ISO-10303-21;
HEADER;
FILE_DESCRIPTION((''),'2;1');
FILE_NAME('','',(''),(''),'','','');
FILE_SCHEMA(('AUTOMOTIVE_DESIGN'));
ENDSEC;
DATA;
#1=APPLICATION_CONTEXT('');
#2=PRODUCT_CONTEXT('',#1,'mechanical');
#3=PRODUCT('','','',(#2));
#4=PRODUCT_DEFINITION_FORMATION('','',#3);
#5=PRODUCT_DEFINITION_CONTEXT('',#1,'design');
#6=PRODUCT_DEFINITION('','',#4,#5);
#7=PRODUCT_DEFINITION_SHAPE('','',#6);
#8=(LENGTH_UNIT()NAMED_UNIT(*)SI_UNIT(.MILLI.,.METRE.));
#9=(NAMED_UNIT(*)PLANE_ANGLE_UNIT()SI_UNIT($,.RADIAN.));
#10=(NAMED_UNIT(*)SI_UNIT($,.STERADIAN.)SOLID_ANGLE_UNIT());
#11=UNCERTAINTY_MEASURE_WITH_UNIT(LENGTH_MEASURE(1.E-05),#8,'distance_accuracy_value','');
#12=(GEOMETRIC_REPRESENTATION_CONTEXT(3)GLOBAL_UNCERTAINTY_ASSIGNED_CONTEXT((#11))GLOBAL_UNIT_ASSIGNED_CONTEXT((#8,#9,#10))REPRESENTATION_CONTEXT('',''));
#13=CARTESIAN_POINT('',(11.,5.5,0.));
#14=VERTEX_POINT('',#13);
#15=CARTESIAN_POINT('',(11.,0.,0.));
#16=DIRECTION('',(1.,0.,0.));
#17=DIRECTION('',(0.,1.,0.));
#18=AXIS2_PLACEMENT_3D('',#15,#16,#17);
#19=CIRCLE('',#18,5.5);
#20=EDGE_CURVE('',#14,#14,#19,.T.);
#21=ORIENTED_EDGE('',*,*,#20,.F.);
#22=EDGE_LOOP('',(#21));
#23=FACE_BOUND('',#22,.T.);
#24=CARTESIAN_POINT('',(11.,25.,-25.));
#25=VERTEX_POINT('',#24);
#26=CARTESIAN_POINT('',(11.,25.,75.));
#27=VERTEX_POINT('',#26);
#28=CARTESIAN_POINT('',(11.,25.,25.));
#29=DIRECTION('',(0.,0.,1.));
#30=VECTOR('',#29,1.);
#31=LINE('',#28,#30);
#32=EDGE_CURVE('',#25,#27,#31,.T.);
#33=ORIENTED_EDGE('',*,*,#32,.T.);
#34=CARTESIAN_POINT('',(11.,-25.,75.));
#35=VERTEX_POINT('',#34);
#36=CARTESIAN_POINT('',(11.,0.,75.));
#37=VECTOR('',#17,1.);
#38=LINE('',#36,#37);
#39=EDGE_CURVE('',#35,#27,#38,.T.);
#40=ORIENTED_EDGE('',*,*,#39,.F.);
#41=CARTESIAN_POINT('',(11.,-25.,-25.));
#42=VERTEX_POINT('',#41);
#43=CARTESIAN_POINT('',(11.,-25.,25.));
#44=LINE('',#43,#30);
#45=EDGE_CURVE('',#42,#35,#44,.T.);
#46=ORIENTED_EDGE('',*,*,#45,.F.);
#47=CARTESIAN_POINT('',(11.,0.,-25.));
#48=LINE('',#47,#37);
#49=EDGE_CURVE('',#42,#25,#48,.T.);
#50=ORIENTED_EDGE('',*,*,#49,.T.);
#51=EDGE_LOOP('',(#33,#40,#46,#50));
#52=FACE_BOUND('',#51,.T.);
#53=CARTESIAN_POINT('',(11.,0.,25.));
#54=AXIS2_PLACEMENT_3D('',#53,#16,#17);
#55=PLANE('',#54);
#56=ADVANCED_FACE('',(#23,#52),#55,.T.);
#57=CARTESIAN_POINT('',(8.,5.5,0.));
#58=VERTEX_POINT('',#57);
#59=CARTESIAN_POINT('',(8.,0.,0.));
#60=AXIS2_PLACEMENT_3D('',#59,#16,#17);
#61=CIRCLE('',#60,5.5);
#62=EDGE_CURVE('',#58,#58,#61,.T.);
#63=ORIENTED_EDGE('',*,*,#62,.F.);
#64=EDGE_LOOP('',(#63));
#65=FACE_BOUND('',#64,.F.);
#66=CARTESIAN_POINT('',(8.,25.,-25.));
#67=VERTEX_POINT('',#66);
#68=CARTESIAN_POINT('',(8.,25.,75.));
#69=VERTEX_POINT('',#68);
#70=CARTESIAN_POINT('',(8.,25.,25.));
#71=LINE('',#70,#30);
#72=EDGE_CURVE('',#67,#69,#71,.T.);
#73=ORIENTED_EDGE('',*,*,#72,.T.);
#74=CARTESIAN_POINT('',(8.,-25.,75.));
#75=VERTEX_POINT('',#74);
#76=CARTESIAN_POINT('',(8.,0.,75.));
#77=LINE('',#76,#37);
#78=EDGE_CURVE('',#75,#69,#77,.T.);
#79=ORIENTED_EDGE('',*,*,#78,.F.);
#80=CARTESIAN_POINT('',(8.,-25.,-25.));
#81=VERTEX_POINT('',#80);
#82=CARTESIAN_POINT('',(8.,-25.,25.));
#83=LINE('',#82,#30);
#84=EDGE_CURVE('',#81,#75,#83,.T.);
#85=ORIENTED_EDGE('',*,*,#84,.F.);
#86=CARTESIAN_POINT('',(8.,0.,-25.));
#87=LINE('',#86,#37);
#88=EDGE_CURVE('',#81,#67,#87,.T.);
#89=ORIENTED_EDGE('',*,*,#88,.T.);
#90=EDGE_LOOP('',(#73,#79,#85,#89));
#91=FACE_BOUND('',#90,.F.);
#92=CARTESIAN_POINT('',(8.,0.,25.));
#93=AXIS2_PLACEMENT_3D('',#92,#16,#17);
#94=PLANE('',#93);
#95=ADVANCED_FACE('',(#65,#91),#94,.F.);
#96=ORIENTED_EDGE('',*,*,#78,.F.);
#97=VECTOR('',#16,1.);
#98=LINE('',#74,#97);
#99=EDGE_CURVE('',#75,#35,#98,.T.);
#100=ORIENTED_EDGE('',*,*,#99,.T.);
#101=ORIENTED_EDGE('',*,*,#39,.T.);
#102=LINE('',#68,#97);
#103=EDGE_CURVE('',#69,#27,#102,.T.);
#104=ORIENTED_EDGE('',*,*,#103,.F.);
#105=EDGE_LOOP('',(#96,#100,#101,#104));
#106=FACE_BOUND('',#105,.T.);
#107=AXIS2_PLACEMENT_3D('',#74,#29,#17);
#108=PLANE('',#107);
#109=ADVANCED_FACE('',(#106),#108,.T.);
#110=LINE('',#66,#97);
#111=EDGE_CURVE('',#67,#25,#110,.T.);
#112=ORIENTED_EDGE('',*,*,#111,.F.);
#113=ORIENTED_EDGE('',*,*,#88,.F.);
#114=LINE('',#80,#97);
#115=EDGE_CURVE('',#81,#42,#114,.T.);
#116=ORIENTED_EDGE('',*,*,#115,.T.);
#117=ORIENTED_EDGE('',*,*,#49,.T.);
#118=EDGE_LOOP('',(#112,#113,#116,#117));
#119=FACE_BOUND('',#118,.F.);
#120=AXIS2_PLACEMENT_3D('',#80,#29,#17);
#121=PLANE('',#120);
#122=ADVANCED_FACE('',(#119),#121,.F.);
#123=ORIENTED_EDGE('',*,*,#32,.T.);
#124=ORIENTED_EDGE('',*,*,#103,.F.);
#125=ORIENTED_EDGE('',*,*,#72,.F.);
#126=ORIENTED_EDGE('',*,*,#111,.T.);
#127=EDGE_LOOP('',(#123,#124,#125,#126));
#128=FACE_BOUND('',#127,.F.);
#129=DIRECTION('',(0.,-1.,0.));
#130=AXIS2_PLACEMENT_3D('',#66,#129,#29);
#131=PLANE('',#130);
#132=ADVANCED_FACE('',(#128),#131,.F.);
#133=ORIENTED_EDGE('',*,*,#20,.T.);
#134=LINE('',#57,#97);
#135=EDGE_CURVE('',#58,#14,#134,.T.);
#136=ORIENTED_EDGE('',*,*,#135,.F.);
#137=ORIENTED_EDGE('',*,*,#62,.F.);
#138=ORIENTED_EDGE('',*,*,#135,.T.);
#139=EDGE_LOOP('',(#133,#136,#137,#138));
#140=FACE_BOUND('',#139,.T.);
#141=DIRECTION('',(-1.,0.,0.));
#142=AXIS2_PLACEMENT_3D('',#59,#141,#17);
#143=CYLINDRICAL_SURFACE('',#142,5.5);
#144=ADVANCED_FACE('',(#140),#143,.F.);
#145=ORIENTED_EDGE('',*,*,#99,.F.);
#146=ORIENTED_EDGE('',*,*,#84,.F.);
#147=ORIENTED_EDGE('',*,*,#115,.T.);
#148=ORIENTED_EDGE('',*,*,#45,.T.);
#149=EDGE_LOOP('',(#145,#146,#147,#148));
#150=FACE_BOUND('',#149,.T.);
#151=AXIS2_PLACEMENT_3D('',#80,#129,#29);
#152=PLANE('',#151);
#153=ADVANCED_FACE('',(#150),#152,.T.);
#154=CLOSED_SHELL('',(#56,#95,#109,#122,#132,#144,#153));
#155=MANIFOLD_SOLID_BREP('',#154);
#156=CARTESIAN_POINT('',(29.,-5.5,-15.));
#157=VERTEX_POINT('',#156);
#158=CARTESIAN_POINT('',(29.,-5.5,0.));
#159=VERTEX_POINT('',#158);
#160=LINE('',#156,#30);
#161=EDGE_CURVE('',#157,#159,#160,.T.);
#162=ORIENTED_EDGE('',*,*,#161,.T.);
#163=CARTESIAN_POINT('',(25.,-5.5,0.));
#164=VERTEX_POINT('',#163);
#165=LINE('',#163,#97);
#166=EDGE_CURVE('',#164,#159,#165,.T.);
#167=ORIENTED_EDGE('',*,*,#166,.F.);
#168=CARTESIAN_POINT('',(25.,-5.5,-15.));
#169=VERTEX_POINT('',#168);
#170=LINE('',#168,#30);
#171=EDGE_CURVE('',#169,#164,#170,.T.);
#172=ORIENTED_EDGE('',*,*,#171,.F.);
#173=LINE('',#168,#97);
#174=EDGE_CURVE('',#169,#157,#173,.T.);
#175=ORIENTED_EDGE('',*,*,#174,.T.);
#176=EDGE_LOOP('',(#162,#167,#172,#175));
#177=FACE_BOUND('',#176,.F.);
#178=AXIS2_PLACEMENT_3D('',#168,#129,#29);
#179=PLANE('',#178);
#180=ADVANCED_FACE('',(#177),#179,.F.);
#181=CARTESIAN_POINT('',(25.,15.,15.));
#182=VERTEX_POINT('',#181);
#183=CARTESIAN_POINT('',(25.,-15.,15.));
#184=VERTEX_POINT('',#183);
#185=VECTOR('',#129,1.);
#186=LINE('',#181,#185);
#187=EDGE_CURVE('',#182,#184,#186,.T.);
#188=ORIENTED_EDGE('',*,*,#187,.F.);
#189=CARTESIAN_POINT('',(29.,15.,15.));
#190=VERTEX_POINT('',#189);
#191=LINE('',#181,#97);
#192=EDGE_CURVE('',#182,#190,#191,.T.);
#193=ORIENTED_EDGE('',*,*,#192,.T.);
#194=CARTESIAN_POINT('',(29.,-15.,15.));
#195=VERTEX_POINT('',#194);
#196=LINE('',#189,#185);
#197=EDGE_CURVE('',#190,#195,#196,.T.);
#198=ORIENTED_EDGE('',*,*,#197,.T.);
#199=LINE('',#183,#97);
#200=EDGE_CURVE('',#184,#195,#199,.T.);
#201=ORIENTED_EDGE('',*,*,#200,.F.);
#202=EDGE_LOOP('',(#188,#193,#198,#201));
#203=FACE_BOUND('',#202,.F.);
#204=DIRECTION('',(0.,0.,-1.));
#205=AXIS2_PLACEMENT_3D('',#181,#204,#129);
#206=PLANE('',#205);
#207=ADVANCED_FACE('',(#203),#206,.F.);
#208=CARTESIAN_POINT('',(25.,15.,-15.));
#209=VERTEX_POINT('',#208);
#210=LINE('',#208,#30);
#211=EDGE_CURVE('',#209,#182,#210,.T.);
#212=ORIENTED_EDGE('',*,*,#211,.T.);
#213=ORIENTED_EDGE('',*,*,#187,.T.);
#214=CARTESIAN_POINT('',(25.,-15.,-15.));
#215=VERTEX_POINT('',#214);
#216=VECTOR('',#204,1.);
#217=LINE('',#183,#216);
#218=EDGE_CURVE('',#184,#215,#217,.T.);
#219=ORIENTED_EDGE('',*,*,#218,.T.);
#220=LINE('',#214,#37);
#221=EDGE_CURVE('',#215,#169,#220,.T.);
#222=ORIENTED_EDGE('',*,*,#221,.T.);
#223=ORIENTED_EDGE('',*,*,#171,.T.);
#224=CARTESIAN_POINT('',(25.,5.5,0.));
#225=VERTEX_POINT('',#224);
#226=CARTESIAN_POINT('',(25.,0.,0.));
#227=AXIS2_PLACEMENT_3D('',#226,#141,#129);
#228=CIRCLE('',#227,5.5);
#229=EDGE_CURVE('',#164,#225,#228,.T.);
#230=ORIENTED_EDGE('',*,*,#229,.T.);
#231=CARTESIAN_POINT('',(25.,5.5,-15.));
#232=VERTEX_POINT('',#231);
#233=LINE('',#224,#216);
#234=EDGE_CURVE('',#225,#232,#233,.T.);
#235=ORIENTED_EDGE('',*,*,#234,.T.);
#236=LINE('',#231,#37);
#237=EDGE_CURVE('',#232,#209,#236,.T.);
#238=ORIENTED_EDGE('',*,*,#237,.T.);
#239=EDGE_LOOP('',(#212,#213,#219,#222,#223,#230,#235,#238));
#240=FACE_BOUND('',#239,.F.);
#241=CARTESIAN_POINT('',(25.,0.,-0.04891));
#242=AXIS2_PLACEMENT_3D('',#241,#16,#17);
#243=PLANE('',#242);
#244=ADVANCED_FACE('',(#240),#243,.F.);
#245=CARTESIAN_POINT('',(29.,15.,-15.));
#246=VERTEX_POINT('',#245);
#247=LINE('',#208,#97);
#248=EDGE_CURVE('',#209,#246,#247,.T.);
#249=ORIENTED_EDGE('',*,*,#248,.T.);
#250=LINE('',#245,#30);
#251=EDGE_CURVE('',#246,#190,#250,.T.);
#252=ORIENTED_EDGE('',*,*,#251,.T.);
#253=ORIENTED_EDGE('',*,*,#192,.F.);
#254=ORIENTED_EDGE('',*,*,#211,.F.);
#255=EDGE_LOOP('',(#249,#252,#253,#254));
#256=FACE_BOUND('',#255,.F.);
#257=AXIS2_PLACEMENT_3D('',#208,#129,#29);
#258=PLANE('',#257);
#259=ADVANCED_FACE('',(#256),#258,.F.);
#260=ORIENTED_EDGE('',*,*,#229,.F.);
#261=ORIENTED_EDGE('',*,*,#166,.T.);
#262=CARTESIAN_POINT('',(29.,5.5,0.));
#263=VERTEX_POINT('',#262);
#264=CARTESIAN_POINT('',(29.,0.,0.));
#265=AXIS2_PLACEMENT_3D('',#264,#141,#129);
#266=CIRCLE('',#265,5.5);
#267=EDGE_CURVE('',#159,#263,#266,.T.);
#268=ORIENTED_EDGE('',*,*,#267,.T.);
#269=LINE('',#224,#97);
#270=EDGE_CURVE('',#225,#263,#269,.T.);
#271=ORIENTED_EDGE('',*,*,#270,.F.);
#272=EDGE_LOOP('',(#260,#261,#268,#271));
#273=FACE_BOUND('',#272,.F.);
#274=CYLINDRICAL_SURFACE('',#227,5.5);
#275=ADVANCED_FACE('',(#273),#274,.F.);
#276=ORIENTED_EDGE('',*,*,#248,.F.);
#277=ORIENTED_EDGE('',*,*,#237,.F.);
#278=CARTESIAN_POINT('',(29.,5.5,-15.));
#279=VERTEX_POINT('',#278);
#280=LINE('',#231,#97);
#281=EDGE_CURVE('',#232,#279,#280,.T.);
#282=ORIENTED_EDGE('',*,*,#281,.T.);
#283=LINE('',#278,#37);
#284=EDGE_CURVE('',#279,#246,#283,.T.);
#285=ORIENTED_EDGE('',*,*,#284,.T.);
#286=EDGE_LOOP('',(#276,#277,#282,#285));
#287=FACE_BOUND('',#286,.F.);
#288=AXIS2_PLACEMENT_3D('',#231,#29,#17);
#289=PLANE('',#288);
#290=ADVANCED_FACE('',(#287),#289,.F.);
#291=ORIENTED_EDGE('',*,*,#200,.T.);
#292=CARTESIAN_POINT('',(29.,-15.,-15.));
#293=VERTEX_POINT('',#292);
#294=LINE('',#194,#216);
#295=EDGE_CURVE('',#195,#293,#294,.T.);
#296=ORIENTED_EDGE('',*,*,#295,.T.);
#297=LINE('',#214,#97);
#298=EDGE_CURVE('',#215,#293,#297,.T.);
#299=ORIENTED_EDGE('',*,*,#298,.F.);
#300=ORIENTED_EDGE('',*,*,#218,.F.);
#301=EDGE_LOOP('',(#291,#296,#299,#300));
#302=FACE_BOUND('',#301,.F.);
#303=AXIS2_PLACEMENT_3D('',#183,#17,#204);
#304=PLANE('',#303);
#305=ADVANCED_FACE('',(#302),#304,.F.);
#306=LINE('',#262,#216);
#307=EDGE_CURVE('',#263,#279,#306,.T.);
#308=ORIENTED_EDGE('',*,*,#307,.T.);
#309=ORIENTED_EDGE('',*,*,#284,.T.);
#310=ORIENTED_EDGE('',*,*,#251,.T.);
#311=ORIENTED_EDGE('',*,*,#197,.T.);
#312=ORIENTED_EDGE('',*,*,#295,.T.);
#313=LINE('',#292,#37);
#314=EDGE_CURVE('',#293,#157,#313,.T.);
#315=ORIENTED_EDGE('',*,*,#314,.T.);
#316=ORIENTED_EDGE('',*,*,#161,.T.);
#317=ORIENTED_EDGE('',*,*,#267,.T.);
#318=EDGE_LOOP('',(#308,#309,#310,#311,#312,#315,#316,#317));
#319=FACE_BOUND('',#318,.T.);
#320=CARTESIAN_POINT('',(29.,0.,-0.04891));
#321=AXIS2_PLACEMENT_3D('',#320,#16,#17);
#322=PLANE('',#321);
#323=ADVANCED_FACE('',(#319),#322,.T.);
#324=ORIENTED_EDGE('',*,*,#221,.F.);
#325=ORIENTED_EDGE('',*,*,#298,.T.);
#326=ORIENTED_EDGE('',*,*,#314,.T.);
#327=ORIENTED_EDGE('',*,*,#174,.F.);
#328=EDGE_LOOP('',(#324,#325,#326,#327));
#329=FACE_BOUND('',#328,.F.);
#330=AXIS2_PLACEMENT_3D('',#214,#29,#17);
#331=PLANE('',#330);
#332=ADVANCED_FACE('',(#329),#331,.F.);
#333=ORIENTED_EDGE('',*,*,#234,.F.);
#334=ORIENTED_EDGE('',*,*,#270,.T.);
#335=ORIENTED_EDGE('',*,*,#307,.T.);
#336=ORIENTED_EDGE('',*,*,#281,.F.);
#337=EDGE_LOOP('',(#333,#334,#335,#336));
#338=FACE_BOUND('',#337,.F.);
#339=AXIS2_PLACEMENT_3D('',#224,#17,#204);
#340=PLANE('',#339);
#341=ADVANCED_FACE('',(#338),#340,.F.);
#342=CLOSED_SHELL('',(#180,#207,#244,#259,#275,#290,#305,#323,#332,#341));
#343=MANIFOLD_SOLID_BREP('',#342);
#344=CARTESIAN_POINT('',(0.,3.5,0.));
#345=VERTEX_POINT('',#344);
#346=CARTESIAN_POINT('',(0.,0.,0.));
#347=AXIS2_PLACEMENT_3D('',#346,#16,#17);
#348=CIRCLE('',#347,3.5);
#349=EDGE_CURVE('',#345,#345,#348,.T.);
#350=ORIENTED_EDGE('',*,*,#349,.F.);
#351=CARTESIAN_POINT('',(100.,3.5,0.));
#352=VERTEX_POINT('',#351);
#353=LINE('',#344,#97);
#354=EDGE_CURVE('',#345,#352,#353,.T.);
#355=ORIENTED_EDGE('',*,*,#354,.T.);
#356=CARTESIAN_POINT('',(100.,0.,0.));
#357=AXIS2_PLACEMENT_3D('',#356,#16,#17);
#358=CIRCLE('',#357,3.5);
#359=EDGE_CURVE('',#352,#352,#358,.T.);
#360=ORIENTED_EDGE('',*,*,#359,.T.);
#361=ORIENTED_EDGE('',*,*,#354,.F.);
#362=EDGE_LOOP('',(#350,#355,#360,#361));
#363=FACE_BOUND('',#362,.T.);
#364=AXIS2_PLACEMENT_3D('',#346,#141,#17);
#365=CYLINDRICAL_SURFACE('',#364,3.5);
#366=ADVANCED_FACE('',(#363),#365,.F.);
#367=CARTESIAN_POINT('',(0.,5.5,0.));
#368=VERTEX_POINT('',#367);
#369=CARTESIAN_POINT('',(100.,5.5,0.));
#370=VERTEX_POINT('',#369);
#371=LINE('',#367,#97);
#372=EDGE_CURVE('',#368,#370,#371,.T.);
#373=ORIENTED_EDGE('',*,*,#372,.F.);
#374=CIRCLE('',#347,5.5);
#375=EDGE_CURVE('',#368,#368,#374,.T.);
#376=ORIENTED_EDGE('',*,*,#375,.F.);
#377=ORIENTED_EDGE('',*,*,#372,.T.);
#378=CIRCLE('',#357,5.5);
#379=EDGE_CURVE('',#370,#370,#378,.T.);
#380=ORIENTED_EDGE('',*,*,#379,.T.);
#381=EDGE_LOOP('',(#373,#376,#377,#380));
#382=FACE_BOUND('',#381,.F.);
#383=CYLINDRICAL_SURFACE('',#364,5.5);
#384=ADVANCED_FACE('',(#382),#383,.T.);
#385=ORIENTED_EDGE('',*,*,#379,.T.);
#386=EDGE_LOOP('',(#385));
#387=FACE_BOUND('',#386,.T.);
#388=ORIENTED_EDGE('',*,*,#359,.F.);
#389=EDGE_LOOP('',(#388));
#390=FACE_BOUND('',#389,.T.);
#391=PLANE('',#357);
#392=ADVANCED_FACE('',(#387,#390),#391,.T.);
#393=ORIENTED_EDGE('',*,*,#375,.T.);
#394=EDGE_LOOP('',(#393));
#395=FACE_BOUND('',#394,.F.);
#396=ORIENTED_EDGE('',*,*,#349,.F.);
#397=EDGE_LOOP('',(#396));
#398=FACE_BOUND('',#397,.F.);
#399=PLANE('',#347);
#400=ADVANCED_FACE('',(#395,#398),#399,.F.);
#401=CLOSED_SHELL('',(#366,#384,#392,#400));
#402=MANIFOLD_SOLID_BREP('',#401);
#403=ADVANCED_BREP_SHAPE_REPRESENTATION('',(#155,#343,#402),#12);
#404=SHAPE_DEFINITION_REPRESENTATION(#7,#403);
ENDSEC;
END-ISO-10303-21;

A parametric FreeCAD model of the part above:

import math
import FreeCAD as App
import Part
import Sketcher
from FreeCAD import Vector


def add_polygon(sketch, points):
    """Adds a closed chain of lines whose ends are joined by coincident constraints."""
    first, n = sketch.GeometryCount, len(points)
    for a, b in zip(points, points[1:] + points[:1]):
        sketch.addGeometry(Part.LineSegment(App.Vector(*a, 0), App.Vector(*b, 0)), False)
    for i in range(n):
        sketch.addConstraint(Sketcher.Constraint("Coincident", first + i, 2, first + (i + 1) % n, 1))

doc = App.newDocument("Part")
body = doc.addObject("PartDesign::Body", "Body")

# Sketch on YZ plane
sketch1 = body.newObject("Sketcher::SketchObject", "Sketch")
sketch1.AttachmentSupport = (doc.getObject("YZ_Plane"), [""])
sketch1.MapMode = "FlatFace"
sketch1.addGeometry(Part.Circle(Vector(0, 0, 0), Vector(0, 0, 1), 5.5), False)
sketch1.addGeometry(Part.Circle(Vector(0, 0, 0), Vector(0, 0, 1), 3.5), False)
sketch1.addConstraint(Sketcher.Constraint("Coincident", 0, 3, -1, 1))
sketch1.addConstraint(Sketcher.Constraint("Coincident", 1, 3, -1, 1))
sketch1.addConstraint(Sketcher.Constraint("Diameter", 0, 11.0))
sketch1.addConstraint(Sketcher.Constraint("Diameter", 1, 7.0))
pad1 = body.newObject("PartDesign::Pad", "Pad")
pad1.Profile = sketch1
pad1.Length = 100
body2 = doc.addObject("PartDesign::Body", "Body001")

# Sketch on YZ plane
sketch2 = body2.newObject("Sketcher::SketchObject", "Sketch001")
sketch2.AttachmentSupport = (doc.getObject("YZ_Plane001"), [""])
sketch2.MapMode = "FlatFace"
sketch2.AttachmentOffset = App.Placement(Vector(0, 0, 8), App.Rotation())
add_polygon(sketch2, [(-25, 75), (-25, -25), (25, -25), (25, 75)])  # lines 0-3
sketch2.addGeometry(Part.Circle(Vector(0, 0, 0), Vector(0, 0, 1), 5.5), False)  # 4
sketch2.addConstraint(Sketcher.Constraint("Vertical", 0))
sketch2.addConstraint(Sketcher.Constraint("Horizontal", 1))
sketch2.addConstraint(Sketcher.Constraint("Vertical", 2))
sketch2.addConstraint(Sketcher.Constraint("Horizontal", 3))
sketch2.addConstraint(Sketcher.Constraint("Coincident", 4, 3, -1, 1))
sketch2.addConstraint(Sketcher.Constraint("Diameter", 4, 11.0))
sketch2.addConstraint(Sketcher.Constraint("DistanceX", 1, 1, 1, 2, 50.0))
sketch2.addConstraint(Sketcher.Constraint("DistanceY", 0, 2, 0, 1, 100.0))
sketch2.addConstraint(Sketcher.Constraint("DistanceX", 0, 2, -1, 1, 25.0))
sketch2.addConstraint(Sketcher.Constraint("DistanceY", 0, 2, -1, 1, 25.0))
pad2 = body2.newObject("PartDesign::Pad", "Pad001")
pad2.Profile = sketch2
pad2.Length = 3
body3 = doc.addObject("PartDesign::Body", "Body002")

# Sketch on YZ plane
sketch3 = body3.newObject("Sketcher::SketchObject", "Sketch002")
sketch3.AttachmentSupport = (doc.getObject("YZ_Plane002"), [""])
sketch3.MapMode = "FlatFace"
sketch3.AttachmentOffset = App.Placement(Vector(0, 0, 25), App.Rotation())
sketch3.addGeometry(Part.ArcOfCircle(Part.Circle(Vector(0, 0, 0), Vector(0, 0, 1), 5.5), math.radians(0), math.radians(180)), False)
sketch3.addGeometry(Part.LineSegment(Vector(5.5, 0, 0), Vector(5.5, -15, 0)), False)
sketch3.addGeometry(Part.LineSegment(Vector(5.5, -15, 0), Vector(15, -15, 0)), False)
sketch3.addGeometry(Part.LineSegment(Vector(15, -15, 0), Vector(15, 15, 0)), False)
sketch3.addGeometry(Part.LineSegment(Vector(15, 15, 0), Vector(-15, 15, 0)), False)
sketch3.addGeometry(Part.LineSegment(Vector(-15, 15, 0), Vector(-15, -15, 0)), False)
sketch3.addGeometry(Part.LineSegment(Vector(-15, -15, 0), Vector(-5.5, -15, 0)), False)
sketch3.addGeometry(Part.LineSegment(Vector(-5.5, -15, 0), Vector(-5.5, 0, 0)), False)
sketch3.addConstraint(Sketcher.Constraint("Tangent", 0, 1, 1, 1))
sketch3.addConstraint(Sketcher.Constraint("Coincident", 1, 2, 2, 1))
sketch3.addConstraint(Sketcher.Constraint("Coincident", 2, 2, 3, 1))
sketch3.addConstraint(Sketcher.Constraint("Coincident", 3, 2, 4, 1))
sketch3.addConstraint(Sketcher.Constraint("Coincident", 4, 2, 5, 1))
sketch3.addConstraint(Sketcher.Constraint("Coincident", 5, 2, 6, 1))
sketch3.addConstraint(Sketcher.Constraint("Coincident", 6, 2, 7, 1))
sketch3.addConstraint(Sketcher.Constraint("Tangent", 7, 2, 0, 2))
sketch3.addConstraint(Sketcher.Constraint("Vertical", 1))
sketch3.addConstraint(Sketcher.Constraint("Horizontal", 2))
sketch3.addConstraint(Sketcher.Constraint("Vertical", 3))
sketch3.addConstraint(Sketcher.Constraint("Horizontal", 4))
sketch3.addConstraint(Sketcher.Constraint("Vertical", 5))
sketch3.addConstraint(Sketcher.Constraint("Horizontal", 6))
sketch3.addConstraint(Sketcher.Constraint("Vertical", 7))
sketch3.addConstraint(Sketcher.Constraint("Coincident", 0, 3, -1, 1))
sketch3.addConstraint(Sketcher.Constraint("Symmetric", 2, 2, 4, 2, -1, 1))
sketch3.addConstraint(Sketcher.Constraint("Horizontal", 2, 2, 5, 2))
sketch3.addConstraint(Sketcher.Constraint("Equal", 4, 3))
sketch3.addConstraint(Sketcher.Constraint("Radius", 0, 5.5))
sketch3.addConstraint(Sketcher.Constraint("DistanceX", 4, 2, 4, 1, 30.0))
pad3 = body3.newObject("PartDesign::Pad", "Pad002")
pad3.Profile = sketch3
pad3.Length = 4

doc.recompute()
